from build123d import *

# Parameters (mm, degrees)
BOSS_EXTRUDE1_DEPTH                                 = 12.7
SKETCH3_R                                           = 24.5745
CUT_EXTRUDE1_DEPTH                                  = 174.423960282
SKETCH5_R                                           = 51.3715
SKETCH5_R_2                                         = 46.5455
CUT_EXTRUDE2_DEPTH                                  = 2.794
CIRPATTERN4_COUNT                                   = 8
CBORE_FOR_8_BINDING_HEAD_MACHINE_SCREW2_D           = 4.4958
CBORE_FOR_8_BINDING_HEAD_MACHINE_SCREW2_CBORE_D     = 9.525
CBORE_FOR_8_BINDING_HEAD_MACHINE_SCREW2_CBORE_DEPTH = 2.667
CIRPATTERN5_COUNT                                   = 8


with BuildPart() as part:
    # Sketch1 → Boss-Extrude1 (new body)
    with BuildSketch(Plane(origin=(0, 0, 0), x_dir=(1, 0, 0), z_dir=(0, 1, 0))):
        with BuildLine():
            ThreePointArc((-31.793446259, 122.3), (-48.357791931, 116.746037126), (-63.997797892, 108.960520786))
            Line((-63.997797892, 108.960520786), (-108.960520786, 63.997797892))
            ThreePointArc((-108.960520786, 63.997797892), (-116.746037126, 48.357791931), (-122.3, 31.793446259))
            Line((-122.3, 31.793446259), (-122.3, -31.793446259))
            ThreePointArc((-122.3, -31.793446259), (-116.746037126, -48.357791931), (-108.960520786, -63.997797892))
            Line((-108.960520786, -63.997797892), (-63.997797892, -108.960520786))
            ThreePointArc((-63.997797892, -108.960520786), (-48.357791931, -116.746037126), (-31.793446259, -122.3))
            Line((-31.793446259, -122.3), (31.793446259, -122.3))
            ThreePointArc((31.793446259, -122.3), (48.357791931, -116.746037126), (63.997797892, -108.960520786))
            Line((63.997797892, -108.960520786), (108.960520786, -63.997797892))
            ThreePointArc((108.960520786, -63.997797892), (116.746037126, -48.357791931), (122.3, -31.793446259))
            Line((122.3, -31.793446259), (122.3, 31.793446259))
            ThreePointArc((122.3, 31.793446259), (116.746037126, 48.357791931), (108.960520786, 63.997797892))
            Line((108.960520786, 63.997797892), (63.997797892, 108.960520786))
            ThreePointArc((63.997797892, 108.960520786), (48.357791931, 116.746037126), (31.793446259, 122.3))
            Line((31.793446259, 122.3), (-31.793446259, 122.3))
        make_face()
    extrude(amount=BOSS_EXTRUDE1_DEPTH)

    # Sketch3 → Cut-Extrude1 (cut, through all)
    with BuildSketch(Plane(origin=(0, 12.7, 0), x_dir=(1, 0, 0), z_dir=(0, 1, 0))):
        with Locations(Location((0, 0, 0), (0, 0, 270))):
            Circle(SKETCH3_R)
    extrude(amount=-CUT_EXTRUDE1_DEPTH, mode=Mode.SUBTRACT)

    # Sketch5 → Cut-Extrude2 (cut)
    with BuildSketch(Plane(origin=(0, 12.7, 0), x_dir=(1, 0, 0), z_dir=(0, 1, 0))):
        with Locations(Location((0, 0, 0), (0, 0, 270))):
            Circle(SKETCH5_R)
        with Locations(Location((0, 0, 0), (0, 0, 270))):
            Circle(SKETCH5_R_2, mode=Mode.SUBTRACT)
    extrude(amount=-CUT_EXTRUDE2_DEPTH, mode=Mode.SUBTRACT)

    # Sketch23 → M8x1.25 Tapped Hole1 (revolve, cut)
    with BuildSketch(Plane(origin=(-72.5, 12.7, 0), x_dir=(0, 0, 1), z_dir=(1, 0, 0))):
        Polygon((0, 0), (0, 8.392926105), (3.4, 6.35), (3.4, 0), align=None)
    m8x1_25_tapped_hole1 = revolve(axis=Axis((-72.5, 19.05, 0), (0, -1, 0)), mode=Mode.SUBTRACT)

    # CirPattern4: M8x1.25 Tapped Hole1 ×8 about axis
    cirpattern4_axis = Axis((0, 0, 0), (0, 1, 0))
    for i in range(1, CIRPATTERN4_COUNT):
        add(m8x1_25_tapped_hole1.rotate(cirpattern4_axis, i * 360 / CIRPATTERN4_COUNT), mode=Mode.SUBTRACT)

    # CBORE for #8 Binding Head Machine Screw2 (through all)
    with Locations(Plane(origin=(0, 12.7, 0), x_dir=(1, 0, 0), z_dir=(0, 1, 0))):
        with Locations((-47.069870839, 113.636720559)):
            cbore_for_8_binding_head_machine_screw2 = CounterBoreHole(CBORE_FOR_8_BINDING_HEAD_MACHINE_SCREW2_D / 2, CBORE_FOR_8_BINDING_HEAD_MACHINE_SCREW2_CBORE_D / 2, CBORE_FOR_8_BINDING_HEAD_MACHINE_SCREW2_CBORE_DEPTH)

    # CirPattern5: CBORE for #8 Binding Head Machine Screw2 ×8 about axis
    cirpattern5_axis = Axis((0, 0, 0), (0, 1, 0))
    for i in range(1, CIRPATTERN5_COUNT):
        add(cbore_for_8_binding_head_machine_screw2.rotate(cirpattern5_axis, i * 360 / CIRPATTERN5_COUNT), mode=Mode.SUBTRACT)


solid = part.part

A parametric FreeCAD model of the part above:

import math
import FreeCAD as App
import Part
import Sketcher

V = App.Vector
Q = App.Units.Quantity


def add_polygon(sketch, points):
    """Adds a closed chain of lines whose ends are joined by coincident constraints."""
    first, n = sketch.GeometryCount, len(points)
    for a, b in zip(points, points[1:] + points[:1]):
        sketch.addGeometry(Part.LineSegment(App.Vector(*a, 0), App.Vector(*b, 0)), False)
    for i in range(n):
        sketch.addConstraint(Sketcher.Constraint("Coincident", first + i, 2, first + (i + 1) % n, 1))

doc = App.newDocument("Part")
body = doc.addObject("PartDesign::Body", "Body")

sketch1 = body.newObject("Sketcher::SketchObject", "Sketch")
sketch1.AttachmentSupport = (doc.getObject("XZ_Plane"), [""])
sketch1.MapMode = "FlatFace"
sketch1.addGeometry(Part.ArcOfCircle(Part.Circle(V(0, 0, 0), V(0, 0, 1), 126), math.radians(-120.43), math.radians(-104.57)), False)
sketch1.addGeometry(Part.LineSegment(V(-64, -109, 0), V(-109, -64, 0)), False)
sketch1.addGeometry(Part.ArcOfCircle(Part.Circle(V(0, 0, 0), V(0, 0, 1), 126), math.radians(-165.43), math.radians(-149.57)), False)
sketch1.addGeometry(Part.LineSegment(V(-122, -32, 0), V(-122, 32, 0)), False)
sketch1.addGeometry(Part.ArcOfCircle(Part.Circle(V(0, 0, 0), V(0, 0, 1), 126), math.radians(149.57), math.radians(165.43)), False)
sketch1.addGeometry(Part.LineSegment(V(-109, 64, 0), V(-64, 109, 0)), False)
sketch1.addGeometry(Part.ArcOfCircle(Part.Circle(V(0, 0, 0), V(0, 0, 1), 126), math.radians(104.57), math.radians(120.43)), False)
sketch1.addGeometry(Part.LineSegment(V(-32, 122, 0), V(32, 122, 0)), False)
sketch1.addGeometry(Part.ArcOfCircle(Part.Circle(V(0, 0, 0), V(0, 0, 1), 126), math.radians(59.57), math.radians(75.43)), False)
sketch1.addGeometry(Part.LineSegment(V(64, 109, 0), V(109, 64, 0)), False)
sketch1.addGeometry(Part.ArcOfCircle(Part.Circle(V(0, 0, 0), V(0, 0, 1), 126), math.radians(14.57), math.radians(30.43)), False)
sketch1.addGeometry(Part.LineSegment(V(122, 32, 0), V(122, -32, 0)), False)
sketch1.addGeometry(Part.ArcOfCircle(Part.Circle(V(0, 0, 0), V(0, 0, 1), 126), math.radians(-30.43), math.radians(-14.57)), False)
sketch1.addGeometry(Part.LineSegment(V(109, -64, 0), V(64, -109, 0)), False)
sketch1.addGeometry(Part.ArcOfCircle(Part.Circle(V(0, 0, 0), V(0, 0, 1), 126), math.radians(-75.43), math.radians(-59.57)), False)
sketch1.addGeometry(Part.LineSegment(V(32, -122, 0), V(-32, -122, 0)), False)
sketch1.addConstraint(Sketcher.Constraint("Coincident", 0, 1, 1, 1))
sketch1.addConstraint(Sketcher.Constraint("Coincident", 1, 2, 2, 2))
sketch1.addConstraint(Sketcher.Constraint("Coincident", 2, 1, 3, 1))
sketch1.addConstraint(Sketcher.Constraint("Coincident", 3, 2, 4, 2))
sketch1.addConstraint(Sketcher.Constraint("Coincident", 4, 1, 5, 1))
sketch1.addConstraint(Sketcher.Constraint("Coincident", 5, 2, 6, 2))
sketch1.addConstraint(Sketcher.Constraint("Coincident", 6, 1, 7, 1))
sketch1.addConstraint(Sketcher.Constraint("Coincident", 7, 2, 8, 2))
sketch1.addConstraint(Sketcher.Constraint("Coincident", 8, 1, 9, 1))
sketch1.addConstraint(Sketcher.Constraint("Coincident", 9, 2, 10, 2))
sketch1.addConstraint(Sketcher.Constraint("Coincident", 10, 1, 11, 1))
sketch1.addConstraint(Sketcher.Constraint("Coincident", 11, 2, 12, 2))
sketch1.addConstraint(Sketcher.Constraint("Coincident", 12, 1, 13, 1))
sketch1.addConstraint(Sketcher.Constraint("Coincident", 13, 2, 14, 2))
sketch1.addConstraint(Sketcher.Constraint("Coincident", 14, 1, 15, 1))
sketch1.addConstraint(Sketcher.Constraint("Coincident", 15, 2, 0, 2))
sketch1.addConstraint(Sketcher.Constraint("Vertical", 3))
sketch1.addConstraint(Sketcher.Constraint("Horizontal", 7))
sketch1.addConstraint(Sketcher.Constraint("Vertical", 11))
sketch1.addConstraint(Sketcher.Constraint("Horizontal", 15))
sketch1.addConstraint(Sketcher.Constraint("Coincident", 0, 3, -1, 1))
sketch1.addConstraint(Sketcher.Constraint("Coincident", 2, 3, -1, 1))
sketch1.addConstraint(Sketcher.Constraint("Coincident", 4, 3, -1, 1))
sketch1.addConstraint(Sketcher.Constraint("Coincident", 6, 3, -1, 1))
sketch1.addConstraint(Sketcher.Constraint("Coincident", 8, 3, -1, 1))
sketch1.addConstraint(Sketcher.Constraint("Coincident", 10, 3, -1, 1))
sketch1.addConstraint(Sketcher.Constraint("Coincident", 12, 3, -1, 1))
sketch1.addConstraint(Sketcher.Constraint("Coincident", 14, 3, -1, 1))
sketch1.addConstraint(Sketcher.Constraint("Equal", 0, 2))
sketch1.addConstraint(Sketcher.Constraint("Equal", 2, 4))
sketch1.addConstraint(Sketcher.Constraint("Equal", 4, 6))
sketch1.addConstraint(Sketcher.Constraint("Equal", 6, 8))
sketch1.addConstraint(Sketcher.Constraint("Equal", 8, 10))
sketch1.addConstraint(Sketcher.Constraint("Equal", 10, 12))
sketch1.addConstraint(Sketcher.Constraint("Equal", 12, 14))
sketch1.addConstraint(Sketcher.Constraint("Perpendicular", 1, 5))
sketch1.addConstraint(Sketcher.Constraint("Perpendicular", 5, 9))
sketch1.addConstraint(Sketcher.Constraint("Perpendicular", 9, 13))
sketch1.addConstraint(Sketcher.Constraint("Horizontal", 5, 2, 8, 1))
sketch1.addConstraint(Sketcher.Constraint("Horizontal", 4, 1, 9, 2))
sketch1.addConstraint(Sketcher.Constraint("Horizontal", 3, 2, 10, 1))
sketch1.addConstraint(Sketcher.Constraint("Horizontal", 1, 2, 12, 1))
sketch1.addConstraint(Sketcher.Constraint("Vertical", 1, 2, 4, 1))
sketch1.addConstraint(Sketcher.Constraint("Vertical", 7, 2, 14, 1))
sketch1.addConstraint(Sketcher.Constraint("Equal", 15, 3))
sketch1.addConstraint(Sketcher.Constraint("Radius", 0, Q("4.975 in")))
sketch1.addConstraint(Sketcher.Constraint("DistanceX", 2, 1, -1, 1, Q("122.3 mm")))
sketch1.addConstraint(Sketcher.Constraint("DistanceY", 0, 1, -1, 1, Q("108.960521 mm")))
pad1 = body.newObject("PartDesign::Pad", "Pad")
pad1.Profile = sketch1
pad1.Length = Q("0.5 in")
pad1.Reversed = True

sketch2 = body.newObject("Sketcher::SketchObject", "Sketch001")
sketch2.AttachmentSupport = (doc.getObject("XZ_Plane"), [""])
sketch2.MapMode = "FlatFace"
sketch2.AttachmentOffset = App.Placement(V(0, 0, -0.5 * 25.4), App.Rotation())
sketch2.addGeometry(Part.Circle(V(0, 0, 0), V(0, 0, 1), 25), False)
sketch2.addConstraint(Sketcher.Constraint("Coincident", 0, 3, -1, 1))
sketch2.addConstraint(Sketcher.Constraint("Diameter", 0, Q("1.935 in")))
pocket1 = body.newObject("PartDesign::Pocket", "Pocket")
pocket1.Profile = sketch2
pocket1.Type = "ThroughAll"
pocket1.Reversed = True

sketch3 = body.newObject("Sketcher::SketchObject", "Sketch002")
sketch3.AttachmentSupport = (doc.getObject("XZ_Plane"), [""])
sketch3.MapMode = "FlatFace"
sketch3.AttachmentOffset = App.Placement(V(0, 0, -0.5 * 25.4), App.Rotation())
sketch3.addGeometry(Part.Circle(V(0, 0, 0), V(0, 0, 1), 51), False)
sketch3.addGeometry(Part.Circle(V(0, 0, 0), V(0, 0, 1), 47), False)
sketch3.addConstraint(Sketcher.Constraint("Coincident", 0, 3, -1, 1))
sketch3.addConstraint(Sketcher.Constraint("Coincident", 1, 3, -1, 1))
sketch3.addConstraint(Sketcher.Constraint("Diameter", 0, Q("4.045 in")))
sketch3.addConstraint(Sketcher.Constraint("Diameter", 1, Q("3.665 in")))
pocket2 = body.newObject("PartDesign::Pocket", "Pocket001")
pocket2.Profile = sketch3
pocket2.Length = Q("0.11 in")
pocket2.Reversed = True

sketch4 = body.newObject("Sketcher::SketchObject", "Sketch003")
sketch4.AttachmentSupport = (doc.getObject("YZ_Plane"), [""])
sketch4.MapMode = "FlatFace"
sketch4.AttachmentOffset = App.Placement(V(0, 0, -72.5), App.Rotation())
add_polygon(sketch4, [(4.3, 0), (12.7, 0), (12.7, 3.4), (6.3, 3.4)])
sketch4.addConstraint(Sketcher.Constraint("Horizontal", 0))
sketch4.addConstraint(Sketcher.Constraint("Vertical", 1))
sketch4.addConstraint(Sketcher.Constraint("Horizontal", 2))
sketch4.addConstraint(Sketcher.Constraint("PointOnObject", 0, 2, -1))
sketch4.addConstraint(Sketcher.Constraint("Angle", 3, Q("-121 deg")))
sketch4.addConstraint(Sketcher.Constraint("DistanceX", 2, 2, 2, 1, Q("0.25 in")))
sketch4.addConstraint(Sketcher.Constraint("DistanceX", -1, 1, 0, 2, Q("0.5 in")))
sketch4.addConstraint(Sketcher.Constraint("DistanceY", 1, 1, 1, 2, Q("3.4 mm")))
groove = body.newObject("PartDesign::Groove", "Groove")
groove.Profile = sketch4
groove.ReferenceAxis = (sketch4, ["H_Axis"])
groove.Angle = 360
doc.recompute()

polarpattern = body.newObject("PartDesign::PolarPattern", "PolarPattern")
polarpattern.Originals = [groove]
polarpattern.Axis = (doc.getObject("Y_Axis"), [""])
polarpattern.Angle = 360
polarpattern.Occurrences = 8
body.Tip = polarpattern

sketch5 = body.newObject("Sketcher::SketchObject", "Sketch004")
sketch5.AttachmentSupport = (doc.getObject("XZ_Plane"), [""])
sketch5.MapMode = "FlatFace"
sketch5.AttachmentOffset = App.Placement(V(0, 0, -0.5 * 25.4), App.Rotation())
sketch5.addGeometry(Part.Circle(V(-47.1, -113.6, 0), V(0, 0, 1), 2.2), False)
sketch5.addConstraint(Sketcher.Constraint("Diameter", 0, Q("0.177 in")))
sketch5.addConstraint(Sketcher.Constraint("DistanceX", 0, 3, -1, 1, Q("47.069871 mm")))
sketch5.addConstraint(Sketcher.Constraint("DistanceY", 0, 3, -1, 1, Q("113.636721 mm")))
doc.recompute()
hole = body.newObject("PartDesign::Hole", "Hole")
hole.Profile = sketch5
hole.ThreadType = "None"
hole.Diameter = Q("0.177 in")
hole.DepthType = "ThroughAll"
hole.HoleCutType = "Counterbore"
hole.HoleCutDiameter = Q("0.375 in")
hole.HoleCutDepth = Q("0.105 in")
hole.Reversed = True
doc.recompute()

polarpattern2 = body.newObject("PartDesign::PolarPattern", "PolarPattern001")
polarpattern2.Originals = [hole]
polarpattern2.Axis = (doc.getObject("Y_Axis"), [""])
polarpattern2.Angle = 360
polarpattern2.Occurrences = 8
body.Tip = polarpattern2

doc.recompute()
